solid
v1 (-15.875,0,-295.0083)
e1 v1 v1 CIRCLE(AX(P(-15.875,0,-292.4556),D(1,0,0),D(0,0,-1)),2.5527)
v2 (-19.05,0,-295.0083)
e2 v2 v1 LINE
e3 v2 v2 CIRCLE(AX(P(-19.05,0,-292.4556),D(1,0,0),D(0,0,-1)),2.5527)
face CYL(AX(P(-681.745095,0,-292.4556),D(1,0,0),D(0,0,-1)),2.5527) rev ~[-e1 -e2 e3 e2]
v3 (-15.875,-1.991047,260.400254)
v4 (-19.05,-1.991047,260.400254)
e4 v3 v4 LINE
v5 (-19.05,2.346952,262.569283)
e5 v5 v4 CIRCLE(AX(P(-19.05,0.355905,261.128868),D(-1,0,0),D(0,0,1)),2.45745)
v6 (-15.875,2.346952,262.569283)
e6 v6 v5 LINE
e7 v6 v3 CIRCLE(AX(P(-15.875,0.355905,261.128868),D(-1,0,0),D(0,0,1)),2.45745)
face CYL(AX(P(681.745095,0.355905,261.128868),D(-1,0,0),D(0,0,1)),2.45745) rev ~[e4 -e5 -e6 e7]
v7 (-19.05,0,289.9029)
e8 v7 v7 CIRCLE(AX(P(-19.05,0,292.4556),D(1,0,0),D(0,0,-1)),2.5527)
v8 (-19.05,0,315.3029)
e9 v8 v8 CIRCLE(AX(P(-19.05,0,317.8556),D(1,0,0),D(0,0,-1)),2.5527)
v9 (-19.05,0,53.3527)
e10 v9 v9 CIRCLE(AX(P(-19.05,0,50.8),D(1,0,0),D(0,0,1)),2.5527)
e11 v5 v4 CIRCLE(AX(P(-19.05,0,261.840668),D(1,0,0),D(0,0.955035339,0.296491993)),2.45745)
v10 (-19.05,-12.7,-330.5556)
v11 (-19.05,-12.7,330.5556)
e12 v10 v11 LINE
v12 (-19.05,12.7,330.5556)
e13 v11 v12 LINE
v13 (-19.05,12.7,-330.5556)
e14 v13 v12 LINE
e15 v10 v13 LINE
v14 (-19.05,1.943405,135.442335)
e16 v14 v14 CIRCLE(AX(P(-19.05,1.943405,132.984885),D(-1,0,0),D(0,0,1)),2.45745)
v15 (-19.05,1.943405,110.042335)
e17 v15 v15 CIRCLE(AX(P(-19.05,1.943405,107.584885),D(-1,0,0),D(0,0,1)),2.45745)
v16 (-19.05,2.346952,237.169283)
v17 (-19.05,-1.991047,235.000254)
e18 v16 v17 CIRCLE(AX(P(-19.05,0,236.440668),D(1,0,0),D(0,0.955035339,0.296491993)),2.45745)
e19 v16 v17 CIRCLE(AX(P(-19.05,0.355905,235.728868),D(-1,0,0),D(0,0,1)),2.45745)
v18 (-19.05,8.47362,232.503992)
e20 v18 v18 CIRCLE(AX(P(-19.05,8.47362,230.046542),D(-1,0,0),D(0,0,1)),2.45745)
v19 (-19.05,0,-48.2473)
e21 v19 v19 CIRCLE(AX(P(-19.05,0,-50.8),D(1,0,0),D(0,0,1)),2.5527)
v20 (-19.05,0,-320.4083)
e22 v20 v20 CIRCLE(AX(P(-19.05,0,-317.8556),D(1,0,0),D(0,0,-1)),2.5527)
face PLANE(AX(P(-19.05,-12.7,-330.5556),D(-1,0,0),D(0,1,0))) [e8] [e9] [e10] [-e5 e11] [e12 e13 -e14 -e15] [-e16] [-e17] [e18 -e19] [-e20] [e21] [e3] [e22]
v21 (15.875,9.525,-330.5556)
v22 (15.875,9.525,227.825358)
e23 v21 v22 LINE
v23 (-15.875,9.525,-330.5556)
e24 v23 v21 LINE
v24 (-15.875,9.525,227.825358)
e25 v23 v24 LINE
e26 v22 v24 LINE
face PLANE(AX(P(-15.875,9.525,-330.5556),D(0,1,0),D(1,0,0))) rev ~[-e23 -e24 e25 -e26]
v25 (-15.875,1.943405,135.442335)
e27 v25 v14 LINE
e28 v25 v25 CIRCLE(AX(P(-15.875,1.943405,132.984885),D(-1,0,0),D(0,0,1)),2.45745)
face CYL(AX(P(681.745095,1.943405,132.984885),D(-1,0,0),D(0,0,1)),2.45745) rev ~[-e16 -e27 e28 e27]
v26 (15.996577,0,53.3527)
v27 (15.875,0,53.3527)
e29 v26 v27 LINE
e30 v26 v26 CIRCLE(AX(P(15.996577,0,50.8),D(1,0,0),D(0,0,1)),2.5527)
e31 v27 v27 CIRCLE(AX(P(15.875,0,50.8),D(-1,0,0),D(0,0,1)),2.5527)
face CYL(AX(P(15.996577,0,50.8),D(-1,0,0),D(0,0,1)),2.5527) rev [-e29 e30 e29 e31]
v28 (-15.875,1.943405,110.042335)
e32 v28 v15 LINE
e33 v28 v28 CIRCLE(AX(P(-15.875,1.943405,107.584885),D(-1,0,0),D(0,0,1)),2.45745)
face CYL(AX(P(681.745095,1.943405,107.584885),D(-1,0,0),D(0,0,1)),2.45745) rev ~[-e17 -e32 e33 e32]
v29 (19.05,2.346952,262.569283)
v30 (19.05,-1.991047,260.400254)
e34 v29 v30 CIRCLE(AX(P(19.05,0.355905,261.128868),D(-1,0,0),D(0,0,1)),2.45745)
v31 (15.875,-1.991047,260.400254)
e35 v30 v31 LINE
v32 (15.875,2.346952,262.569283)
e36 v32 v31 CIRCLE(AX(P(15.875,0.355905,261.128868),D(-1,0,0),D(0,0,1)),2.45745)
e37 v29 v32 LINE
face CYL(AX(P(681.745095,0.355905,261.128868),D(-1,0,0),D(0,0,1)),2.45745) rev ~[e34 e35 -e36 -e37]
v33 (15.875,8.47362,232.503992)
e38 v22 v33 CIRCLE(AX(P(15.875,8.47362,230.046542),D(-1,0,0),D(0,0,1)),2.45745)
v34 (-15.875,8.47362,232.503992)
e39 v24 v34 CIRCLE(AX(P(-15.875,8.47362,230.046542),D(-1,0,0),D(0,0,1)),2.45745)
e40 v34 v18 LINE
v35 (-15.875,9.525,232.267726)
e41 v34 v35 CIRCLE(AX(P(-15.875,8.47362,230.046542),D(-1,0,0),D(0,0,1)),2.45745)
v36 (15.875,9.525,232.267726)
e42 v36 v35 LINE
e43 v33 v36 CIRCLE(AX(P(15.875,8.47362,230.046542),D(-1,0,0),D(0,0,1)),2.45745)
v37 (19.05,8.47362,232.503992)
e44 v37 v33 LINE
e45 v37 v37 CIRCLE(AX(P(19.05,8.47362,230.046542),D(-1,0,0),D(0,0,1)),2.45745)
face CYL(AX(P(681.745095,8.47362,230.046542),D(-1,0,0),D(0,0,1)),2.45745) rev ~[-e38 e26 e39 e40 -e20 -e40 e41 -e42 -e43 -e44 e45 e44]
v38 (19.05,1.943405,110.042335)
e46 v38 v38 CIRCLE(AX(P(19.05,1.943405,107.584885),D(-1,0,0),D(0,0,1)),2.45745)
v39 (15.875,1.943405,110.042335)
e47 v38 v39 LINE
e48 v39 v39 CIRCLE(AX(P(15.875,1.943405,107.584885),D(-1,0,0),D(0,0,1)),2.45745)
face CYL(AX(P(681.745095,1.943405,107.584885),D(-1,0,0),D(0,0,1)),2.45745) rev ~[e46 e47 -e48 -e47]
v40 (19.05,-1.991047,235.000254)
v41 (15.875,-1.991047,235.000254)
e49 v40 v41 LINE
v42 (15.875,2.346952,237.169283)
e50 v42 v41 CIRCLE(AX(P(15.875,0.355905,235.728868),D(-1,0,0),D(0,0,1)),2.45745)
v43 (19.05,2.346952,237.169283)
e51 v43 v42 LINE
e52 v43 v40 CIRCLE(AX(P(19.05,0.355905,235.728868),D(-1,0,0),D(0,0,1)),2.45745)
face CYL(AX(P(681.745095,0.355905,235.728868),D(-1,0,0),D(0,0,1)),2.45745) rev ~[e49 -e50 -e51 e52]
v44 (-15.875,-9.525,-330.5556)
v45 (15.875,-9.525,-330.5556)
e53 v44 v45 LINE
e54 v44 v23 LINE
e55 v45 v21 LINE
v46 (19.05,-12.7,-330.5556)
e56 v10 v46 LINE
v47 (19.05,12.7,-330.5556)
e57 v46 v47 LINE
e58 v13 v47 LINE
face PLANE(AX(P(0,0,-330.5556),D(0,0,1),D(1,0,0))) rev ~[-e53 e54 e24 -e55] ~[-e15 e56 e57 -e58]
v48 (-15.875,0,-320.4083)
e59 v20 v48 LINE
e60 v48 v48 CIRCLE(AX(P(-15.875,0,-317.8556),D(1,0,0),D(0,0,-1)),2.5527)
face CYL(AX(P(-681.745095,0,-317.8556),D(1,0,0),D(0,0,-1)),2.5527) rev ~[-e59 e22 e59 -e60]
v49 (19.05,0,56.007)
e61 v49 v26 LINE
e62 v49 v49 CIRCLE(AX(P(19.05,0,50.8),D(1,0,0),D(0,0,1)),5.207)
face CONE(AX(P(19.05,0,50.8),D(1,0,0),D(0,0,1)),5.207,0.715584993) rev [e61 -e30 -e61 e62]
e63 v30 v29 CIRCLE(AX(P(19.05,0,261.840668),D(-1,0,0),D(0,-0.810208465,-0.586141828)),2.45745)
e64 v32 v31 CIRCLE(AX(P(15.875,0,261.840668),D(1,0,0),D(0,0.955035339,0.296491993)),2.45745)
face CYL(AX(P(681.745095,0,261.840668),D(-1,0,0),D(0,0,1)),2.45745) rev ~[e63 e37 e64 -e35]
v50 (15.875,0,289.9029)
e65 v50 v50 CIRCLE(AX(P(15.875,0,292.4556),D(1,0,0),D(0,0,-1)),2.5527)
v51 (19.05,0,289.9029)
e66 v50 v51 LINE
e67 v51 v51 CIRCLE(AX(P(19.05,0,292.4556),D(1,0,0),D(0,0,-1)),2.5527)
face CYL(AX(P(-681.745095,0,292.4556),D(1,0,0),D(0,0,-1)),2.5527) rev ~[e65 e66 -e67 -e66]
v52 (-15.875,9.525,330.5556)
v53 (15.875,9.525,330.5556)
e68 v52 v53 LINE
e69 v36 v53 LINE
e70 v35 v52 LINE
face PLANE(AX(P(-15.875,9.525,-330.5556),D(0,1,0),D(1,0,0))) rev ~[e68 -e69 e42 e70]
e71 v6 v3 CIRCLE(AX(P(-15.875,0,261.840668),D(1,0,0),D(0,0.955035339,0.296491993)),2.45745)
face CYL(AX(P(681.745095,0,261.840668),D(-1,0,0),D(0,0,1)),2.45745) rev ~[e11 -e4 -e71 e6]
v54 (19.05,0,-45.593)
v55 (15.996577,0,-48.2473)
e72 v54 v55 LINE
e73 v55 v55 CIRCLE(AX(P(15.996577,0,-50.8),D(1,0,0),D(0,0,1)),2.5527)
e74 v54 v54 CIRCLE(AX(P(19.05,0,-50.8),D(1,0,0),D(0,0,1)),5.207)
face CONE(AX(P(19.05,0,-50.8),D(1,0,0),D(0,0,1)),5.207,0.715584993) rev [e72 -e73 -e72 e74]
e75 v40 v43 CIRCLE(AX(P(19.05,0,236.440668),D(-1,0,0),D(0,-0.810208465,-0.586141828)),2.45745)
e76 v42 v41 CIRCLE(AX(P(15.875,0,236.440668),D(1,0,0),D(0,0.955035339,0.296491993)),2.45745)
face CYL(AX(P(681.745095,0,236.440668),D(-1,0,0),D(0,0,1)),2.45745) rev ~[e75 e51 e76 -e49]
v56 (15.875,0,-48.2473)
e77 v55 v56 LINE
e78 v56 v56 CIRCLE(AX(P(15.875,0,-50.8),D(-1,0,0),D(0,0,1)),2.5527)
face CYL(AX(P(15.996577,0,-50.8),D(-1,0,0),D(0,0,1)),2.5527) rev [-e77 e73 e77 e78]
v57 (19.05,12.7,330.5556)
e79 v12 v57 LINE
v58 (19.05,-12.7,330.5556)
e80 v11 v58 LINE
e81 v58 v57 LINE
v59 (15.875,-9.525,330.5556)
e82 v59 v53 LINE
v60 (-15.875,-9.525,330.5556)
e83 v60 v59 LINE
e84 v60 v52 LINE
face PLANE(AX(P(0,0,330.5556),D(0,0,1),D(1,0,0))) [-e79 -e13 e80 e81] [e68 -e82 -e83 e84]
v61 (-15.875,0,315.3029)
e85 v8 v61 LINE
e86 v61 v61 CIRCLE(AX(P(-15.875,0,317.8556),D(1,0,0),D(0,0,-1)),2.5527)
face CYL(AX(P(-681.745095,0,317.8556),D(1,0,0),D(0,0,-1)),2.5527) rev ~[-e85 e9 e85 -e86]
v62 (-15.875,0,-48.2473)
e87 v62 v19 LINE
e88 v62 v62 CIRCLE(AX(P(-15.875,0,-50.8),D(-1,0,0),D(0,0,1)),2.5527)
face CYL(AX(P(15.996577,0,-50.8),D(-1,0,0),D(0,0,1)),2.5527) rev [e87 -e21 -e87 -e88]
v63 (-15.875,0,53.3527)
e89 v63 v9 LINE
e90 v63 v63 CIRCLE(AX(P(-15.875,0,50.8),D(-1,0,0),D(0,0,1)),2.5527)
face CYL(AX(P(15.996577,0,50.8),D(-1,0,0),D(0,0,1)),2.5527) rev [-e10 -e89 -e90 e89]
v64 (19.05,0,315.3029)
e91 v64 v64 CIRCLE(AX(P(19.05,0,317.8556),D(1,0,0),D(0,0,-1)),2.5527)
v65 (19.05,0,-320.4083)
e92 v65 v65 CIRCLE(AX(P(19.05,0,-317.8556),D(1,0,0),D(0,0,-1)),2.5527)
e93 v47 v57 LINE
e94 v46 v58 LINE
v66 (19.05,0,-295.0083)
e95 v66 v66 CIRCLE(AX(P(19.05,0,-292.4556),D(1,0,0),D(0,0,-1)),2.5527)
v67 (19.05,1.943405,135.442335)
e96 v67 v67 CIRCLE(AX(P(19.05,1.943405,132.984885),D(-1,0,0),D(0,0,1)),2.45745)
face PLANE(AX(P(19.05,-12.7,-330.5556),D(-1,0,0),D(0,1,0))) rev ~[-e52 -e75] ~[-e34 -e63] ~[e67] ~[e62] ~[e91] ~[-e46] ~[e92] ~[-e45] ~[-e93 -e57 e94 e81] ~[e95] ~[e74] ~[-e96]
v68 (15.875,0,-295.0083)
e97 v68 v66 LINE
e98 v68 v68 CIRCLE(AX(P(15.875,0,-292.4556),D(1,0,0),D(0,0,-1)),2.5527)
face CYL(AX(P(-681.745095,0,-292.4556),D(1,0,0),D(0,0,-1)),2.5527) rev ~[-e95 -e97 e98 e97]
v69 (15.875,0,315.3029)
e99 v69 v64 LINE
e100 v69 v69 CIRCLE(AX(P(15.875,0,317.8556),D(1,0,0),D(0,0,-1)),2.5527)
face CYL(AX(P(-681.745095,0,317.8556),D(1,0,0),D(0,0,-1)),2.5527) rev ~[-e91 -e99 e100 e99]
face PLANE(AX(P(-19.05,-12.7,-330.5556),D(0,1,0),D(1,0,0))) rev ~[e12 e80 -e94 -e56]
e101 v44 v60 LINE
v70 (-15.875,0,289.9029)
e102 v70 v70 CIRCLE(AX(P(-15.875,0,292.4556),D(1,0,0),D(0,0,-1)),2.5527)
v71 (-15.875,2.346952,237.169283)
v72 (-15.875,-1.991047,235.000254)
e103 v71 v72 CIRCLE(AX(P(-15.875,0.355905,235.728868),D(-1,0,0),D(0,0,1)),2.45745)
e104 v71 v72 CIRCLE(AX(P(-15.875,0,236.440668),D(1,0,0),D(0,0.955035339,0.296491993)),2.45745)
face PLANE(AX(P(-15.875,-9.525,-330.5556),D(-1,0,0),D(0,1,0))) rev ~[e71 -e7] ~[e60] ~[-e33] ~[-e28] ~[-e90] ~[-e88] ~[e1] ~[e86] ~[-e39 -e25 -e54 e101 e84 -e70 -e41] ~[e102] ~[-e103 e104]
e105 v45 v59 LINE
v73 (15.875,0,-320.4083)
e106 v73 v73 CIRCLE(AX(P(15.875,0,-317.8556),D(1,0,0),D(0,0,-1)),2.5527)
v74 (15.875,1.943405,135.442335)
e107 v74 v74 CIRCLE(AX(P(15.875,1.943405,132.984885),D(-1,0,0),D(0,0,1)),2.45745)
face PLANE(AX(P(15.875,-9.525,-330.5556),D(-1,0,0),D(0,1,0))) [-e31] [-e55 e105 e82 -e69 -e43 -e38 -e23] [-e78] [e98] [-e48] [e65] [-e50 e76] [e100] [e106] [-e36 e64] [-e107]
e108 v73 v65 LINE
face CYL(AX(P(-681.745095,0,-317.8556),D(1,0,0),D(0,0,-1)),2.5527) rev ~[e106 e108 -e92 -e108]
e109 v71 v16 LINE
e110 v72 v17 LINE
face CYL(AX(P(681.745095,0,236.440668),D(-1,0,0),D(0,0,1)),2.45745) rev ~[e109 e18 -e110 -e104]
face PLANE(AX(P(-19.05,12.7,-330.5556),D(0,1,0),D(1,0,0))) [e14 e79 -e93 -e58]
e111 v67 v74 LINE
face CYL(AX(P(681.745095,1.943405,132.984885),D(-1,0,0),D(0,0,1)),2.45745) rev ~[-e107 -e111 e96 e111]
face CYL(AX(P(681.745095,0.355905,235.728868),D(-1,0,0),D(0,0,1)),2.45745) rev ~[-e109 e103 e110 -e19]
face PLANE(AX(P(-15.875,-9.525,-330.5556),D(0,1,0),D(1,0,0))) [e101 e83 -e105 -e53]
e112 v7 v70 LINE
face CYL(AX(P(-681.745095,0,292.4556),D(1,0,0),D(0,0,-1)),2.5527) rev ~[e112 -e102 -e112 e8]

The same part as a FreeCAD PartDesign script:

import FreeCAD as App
import Part
import Sketcher

V = App.Vector
Q = App.Units.Quantity

doc = App.newDocument("Part")
body = doc.addObject("PartDesign::Body", "Body")

# Sketch on XY plane
sketch1 = body.newObject("Sketcher::SketchObject", "Sketch")
sketch1.AttachmentSupport = (doc.getObject("XY_Plane"), [""])
sketch1.MapMode = "FlatFace"
sketch1.addGeometry([
    Part.LineSegment(V(-19, 13, 0), V(-19, -13, 0)),  # 0
    Part.LineSegment(V(-19, -13, 0), V(19, -13, 0)),  # 1
    Part.LineSegment(V(19, -13, 0), V(19, 13, 0)),  # 2
    Part.LineSegment(V(19, 13, 0), V(-19, 13, 0)),  # 3
    Part.LineSegment(V(16, -10, 0), V(-16, -10, 0)),  # 4
    Part.LineSegment(V(-16, -10, 0), V(-16, 10, 0)),  # 5
    Part.LineSegment(V(-16, 10, 0), V(16, 10, 0)),  # 6
    Part.LineSegment(V(16, 10, 0), V(16, -10, 0)),  # 7
], False)
sketch1.addConstraint([
    Sketcher.Constraint("Coincident", 0, 2, 1, 1),
    Sketcher.Constraint("Coincident", 1, 2, 2, 1),
    Sketcher.Constraint("Coincident", 2, 2, 3, 1),
    Sketcher.Constraint("Coincident", 3, 2, 0, 1),
    Sketcher.Constraint("Coincident", 4, 2, 5, 1),
    Sketcher.Constraint("Coincident", 5, 2, 6, 1),
    Sketcher.Constraint("Coincident", 6, 2, 7, 1),
    Sketcher.Constraint("Coincident", 7, 2, 4, 1),
    Sketcher.Constraint("Vertical", 0),
    Sketcher.Constraint("Horizontal", 1),
    Sketcher.Constraint("Vertical", 2),
    Sketcher.Constraint("Horizontal", 3),
    Sketcher.Constraint("Horizontal", 4),
    Sketcher.Constraint("Vertical", 5),
    Sketcher.Constraint("Horizontal", 6),
    Sketcher.Constraint("Vertical", 7),
    Sketcher.Constraint("Symmetric", 0, 2, 2, 2, -1, 1),
    Sketcher.Constraint("Symmetric", 4, 2, 6, 2, -1, 1),
    Sketcher.Constraint("DistanceY", 0, 2, 0, 1, Q("1 in")),
    Sketcher.Constraint("DistanceX", 1, 1, 1, 2, Q("1.5 in")),
    Sketcher.Constraint("DistanceX", 4, 2, 4, 1, Q("1.25 in")),
    Sketcher.Constraint("DistanceY", 5, 1, 5, 2, Q("0.75 in")),
])
pad1 = body.newObject("PartDesign::Pad", "Pad")
pad1.Profile = sketch1
pad1.Type = "TwoLengths"
pad1.Length = Q("13.014 in")
pad1.Length2 = Q("13.014 in")

# Sketch on YZ plane
sketch2 = body.newObject("Sketcher::SketchObject", "Sketch001")
sketch2.AttachmentSupport = (doc.getObject("YZ_Plane"), [""])
sketch2.MapMode = "FlatFace"
sketch2.AttachmentOffset = App.Placement(V(0, 0, -0.75 * 25.4), App.Rotation())
sketch2.addGeometry([
    Part.Circle(V(0, -317.9, 0), V(0, 0, 1), 2.6),
    Part.Circle(V(0, -292.5, 0), V(0, 0, 1), 2.6),
    Part.Circle(V(0, 292.5, 0), V(0, 0, 1), 2.6),
    Part.Circle(V(0, 317.9, 0), V(0, 0, 1), 2.6),
], False)
sketch2.addConstraint([
    Sketcher.Constraint("Equal", 0, 1),
    Sketcher.Constraint("Equal", 1, 2),
    Sketcher.Constraint("Equal", 2, 3),
    Sketcher.Constraint("Symmetric", 1, 3, 2, 3, -1, 1),
    Sketcher.Constraint("Symmetric", 0, 3, 3, 3, -1, 1),
    Sketcher.Constraint("PointOnObject", 0, 3, -2),
    Sketcher.Constraint("PointOnObject", 1, 3, -2),
    Sketcher.Constraint("Diameter", 0, Q("0.201 in")),
    Sketcher.Constraint("DistanceY", 0, 3, 1, 3, Q("1 in")),
    Sketcher.Constraint("DistanceY", 0, 3, -1, 1, Q("12.514 in")),
])
doc.recompute()
hole = body.newObject("PartDesign::Hole", "Hole")
hole.Profile = sketch2
hole.ThreadType = "None"
hole.Diameter = Q("0.201 in")
hole.DepthType = "ThroughAll"
hole.Reversed = True

# Sketch on YZ plane
sketch3 = body.newObject("Sketcher::SketchObject", "Sketch002")
sketch3.AttachmentSupport = (doc.getObject("YZ_Plane"), [""])
sketch3.MapMode = "FlatFace"
sketch3.AttachmentOffset = App.Placement(V(0, 0, 0.75 * 25.4), App.Rotation())
sketch3.addGeometry([
    Part.Circle(V(0.4, 261.1, 0), V(0, 0, 1), 2.5),  # 0
    Part.Circle(V(0.4, 235.7, 0), V(0, 0, 1), 2.5),  # 1
    Part.Circle(V(8.5, 230, 0), V(0, 0, 1), 2.5),  # 2
    Part.Circle(V(1.9, 133, 0), V(0, 0, 1), 2.5),  # 3
    Part.Circle(V(1.9, 107.6, 0), V(0, 0, 1), 2.5),  # 4
], False)
sketch3.addConstraint([
    Sketcher.Constraint("Equal", 0, 1),
    Sketcher.Constraint("Equal", 1, 2),
    Sketcher.Constraint("Equal", 2, 3),
    Sketcher.Constraint("Equal", 3, 4),
    Sketcher.Constraint("Vertical", 0, 3, 1, 3),
    Sketcher.Constraint("Vertical", 3, 3, 4, 3),
    Sketcher.Constraint("DistanceY", 1, 3, 0, 3, Q("1 in")),
    Sketcher.Constraint("DistanceY", 4, 3, 3, 3, Q("1 in")),
    Sketcher.Constraint("Diameter", 0, Q("0.1935 in")),
    Sketcher.Constraint("DistanceX", 1, 3, 3, 3, Q("0.0625 in")),
    Sketcher.Constraint("DistanceY", -1, 1, 0, 3, 261.128868),
    Sketcher.Constraint("DistanceX", -1, 1, 2, 3, 8.47362),
    Sketcher.Constraint("DistanceY", -1, 1, 2, 3, 230.046542),
    Sketcher.Constraint("DistanceX", -1, 1, 0, 3, 0.355905),
    Sketcher.Constraint("DistanceY", -1, 1, 3, 3, 132.984885),
])
doc.recompute()
hole2 = body.newObject("PartDesign::Hole", "Hole001")
hole2.Profile = sketch3
hole2.ThreadType = "None"
hole2.Diameter = Q("0.1935 in")
hole2.DepthType = "ThroughAll"

# Sketch on YZ plane
sketch4 = body.newObject("Sketcher::SketchObject", "Sketch003")
sketch4.AttachmentSupport = (doc.getObject("YZ_Plane"), [""])
sketch4.MapMode = "FlatFace"
sketch4.AttachmentOffset = App.Placement(V(0, 0, 0.75 * 25.4), App.Rotation())
sketch4.addGeometry([
    Part.Circle(V(0, 261.8, 0), V(0, 0, 1), 2.5),
    Part.Circle(V(0, 236.4, 0), V(0, 0, 1), 2.5),
], False)
sketch4.addConstraint([
    Sketcher.Constraint("Equal", 0, 1),
    Sketcher.Constraint("PointOnObject", 0, 3, -2),
    Sketcher.Constraint("PointOnObject", 1, 3, -2),
    Sketcher.Constraint("DistanceY", 1, 3, 0, 3, Q("1 in")),
    Sketcher.Constraint("Diameter", 0, Q("0.1935 in")),
    Sketcher.Constraint("DistanceY", -1, 1, 0, 3, 261.840668),
])
doc.recompute()
hole3 = body.newObject("PartDesign::Hole", "Hole002")
hole3.Profile = sketch4
hole3.ThreadType = "None"
hole3.Diameter = Q("0.1935 in")
hole3.DepthType = "ThroughAll"

# Sketch on XZ plane
sketch5 = body.newObject("Sketcher::SketchObject", "Sketch004")
sketch5.AttachmentSupport = (doc.getObject("XZ_Plane"), [""])
sketch5.MapMode = "FlatFace"
sketch5.addGeometry([
    Part.LineSegment(V(19.1, -50.8, 0), V(-19.1, -50.8, 0)),  # 0
    Part.LineSegment(V(-19.1, -50.8, 0), V(-19.1, -48.2, 0)),  # 1
    Part.LineSegment(V(-19.1, -48.2, 0), V(16, -48.2, 0)),  # 2
    Part.LineSegment(V(16, -48.2, 0), V(19.1, -45.6, 0)),  # 3
    Part.LineSegment(V(19.1, -45.6, 0), V(19.1, -50.8, 0)),  # 4
], False)
sketch5.addGeometry(Part.LineSegment(V(-19.1, -50.8, 0), V(19.1, -50.8, 0)), True)  # axis
sketch5.addConstraint([
    Sketcher.Constraint("Coincident", 0, 2, 1, 1),
    Sketcher.Constraint("Coincident", 1, 2, 2, 1),
    Sketcher.Constraint("Coincident", 2, 2, 3, 1),
    Sketcher.Constraint("Coincident", 3, 2, 4, 1),
    Sketcher.Constraint("Coincident", 4, 2, 0, 1),
    Sketcher.Constraint("Horizontal", 0),
    Sketcher.Constraint("Vertical", 1),
    Sketcher.Constraint("Horizontal", 2),
    Sketcher.Constraint("Vertical", 4),
    Sketcher.Constraint("Horizontal", 5),
    Sketcher.Constraint("Coincident", 5, 1, 0, 2),
    Sketcher.Constraint("Vertical", 3, 2, 5, 2),
    Sketcher.Constraint("DistanceX", 0, 2, 0, 1, Q("1.5 in")),
    Sketcher.Constraint("DistanceY", 0, 2, -1, 1, Q("2 in")),
    Sketcher.Constraint("Angle", 3, Q("41 deg")),
    Sketcher.Constraint("DistanceY", 4, 2, 4, 1, Q("0.205 in")),
    Sketcher.Constraint("DistanceX", 0, 2, -1, 1, Q("0.75 in")),
    Sketcher.Constraint("DistanceY", 1, 1, 1, 2, Q("0.1005 in")),
])
groove = body.newObject("PartDesign::Groove", "Groove")
groove.Profile = sketch5
groove.ReferenceAxis = (sketch5, ["Axis0"])
groove.Angle = 360
doc.recompute()

linearpattern = body.newObject("PartDesign::LinearPattern", "LinearPattern")
linearpattern.Originals = [groove]
linearpattern.Direction = (doc.getObject("Z_Axis"), [""])
linearpattern.Mode = "offset"
linearpattern.Offset = Q("4 in")
linearpattern.Occurrences = 2
body.Tip = linearpattern

doc.recompute()
